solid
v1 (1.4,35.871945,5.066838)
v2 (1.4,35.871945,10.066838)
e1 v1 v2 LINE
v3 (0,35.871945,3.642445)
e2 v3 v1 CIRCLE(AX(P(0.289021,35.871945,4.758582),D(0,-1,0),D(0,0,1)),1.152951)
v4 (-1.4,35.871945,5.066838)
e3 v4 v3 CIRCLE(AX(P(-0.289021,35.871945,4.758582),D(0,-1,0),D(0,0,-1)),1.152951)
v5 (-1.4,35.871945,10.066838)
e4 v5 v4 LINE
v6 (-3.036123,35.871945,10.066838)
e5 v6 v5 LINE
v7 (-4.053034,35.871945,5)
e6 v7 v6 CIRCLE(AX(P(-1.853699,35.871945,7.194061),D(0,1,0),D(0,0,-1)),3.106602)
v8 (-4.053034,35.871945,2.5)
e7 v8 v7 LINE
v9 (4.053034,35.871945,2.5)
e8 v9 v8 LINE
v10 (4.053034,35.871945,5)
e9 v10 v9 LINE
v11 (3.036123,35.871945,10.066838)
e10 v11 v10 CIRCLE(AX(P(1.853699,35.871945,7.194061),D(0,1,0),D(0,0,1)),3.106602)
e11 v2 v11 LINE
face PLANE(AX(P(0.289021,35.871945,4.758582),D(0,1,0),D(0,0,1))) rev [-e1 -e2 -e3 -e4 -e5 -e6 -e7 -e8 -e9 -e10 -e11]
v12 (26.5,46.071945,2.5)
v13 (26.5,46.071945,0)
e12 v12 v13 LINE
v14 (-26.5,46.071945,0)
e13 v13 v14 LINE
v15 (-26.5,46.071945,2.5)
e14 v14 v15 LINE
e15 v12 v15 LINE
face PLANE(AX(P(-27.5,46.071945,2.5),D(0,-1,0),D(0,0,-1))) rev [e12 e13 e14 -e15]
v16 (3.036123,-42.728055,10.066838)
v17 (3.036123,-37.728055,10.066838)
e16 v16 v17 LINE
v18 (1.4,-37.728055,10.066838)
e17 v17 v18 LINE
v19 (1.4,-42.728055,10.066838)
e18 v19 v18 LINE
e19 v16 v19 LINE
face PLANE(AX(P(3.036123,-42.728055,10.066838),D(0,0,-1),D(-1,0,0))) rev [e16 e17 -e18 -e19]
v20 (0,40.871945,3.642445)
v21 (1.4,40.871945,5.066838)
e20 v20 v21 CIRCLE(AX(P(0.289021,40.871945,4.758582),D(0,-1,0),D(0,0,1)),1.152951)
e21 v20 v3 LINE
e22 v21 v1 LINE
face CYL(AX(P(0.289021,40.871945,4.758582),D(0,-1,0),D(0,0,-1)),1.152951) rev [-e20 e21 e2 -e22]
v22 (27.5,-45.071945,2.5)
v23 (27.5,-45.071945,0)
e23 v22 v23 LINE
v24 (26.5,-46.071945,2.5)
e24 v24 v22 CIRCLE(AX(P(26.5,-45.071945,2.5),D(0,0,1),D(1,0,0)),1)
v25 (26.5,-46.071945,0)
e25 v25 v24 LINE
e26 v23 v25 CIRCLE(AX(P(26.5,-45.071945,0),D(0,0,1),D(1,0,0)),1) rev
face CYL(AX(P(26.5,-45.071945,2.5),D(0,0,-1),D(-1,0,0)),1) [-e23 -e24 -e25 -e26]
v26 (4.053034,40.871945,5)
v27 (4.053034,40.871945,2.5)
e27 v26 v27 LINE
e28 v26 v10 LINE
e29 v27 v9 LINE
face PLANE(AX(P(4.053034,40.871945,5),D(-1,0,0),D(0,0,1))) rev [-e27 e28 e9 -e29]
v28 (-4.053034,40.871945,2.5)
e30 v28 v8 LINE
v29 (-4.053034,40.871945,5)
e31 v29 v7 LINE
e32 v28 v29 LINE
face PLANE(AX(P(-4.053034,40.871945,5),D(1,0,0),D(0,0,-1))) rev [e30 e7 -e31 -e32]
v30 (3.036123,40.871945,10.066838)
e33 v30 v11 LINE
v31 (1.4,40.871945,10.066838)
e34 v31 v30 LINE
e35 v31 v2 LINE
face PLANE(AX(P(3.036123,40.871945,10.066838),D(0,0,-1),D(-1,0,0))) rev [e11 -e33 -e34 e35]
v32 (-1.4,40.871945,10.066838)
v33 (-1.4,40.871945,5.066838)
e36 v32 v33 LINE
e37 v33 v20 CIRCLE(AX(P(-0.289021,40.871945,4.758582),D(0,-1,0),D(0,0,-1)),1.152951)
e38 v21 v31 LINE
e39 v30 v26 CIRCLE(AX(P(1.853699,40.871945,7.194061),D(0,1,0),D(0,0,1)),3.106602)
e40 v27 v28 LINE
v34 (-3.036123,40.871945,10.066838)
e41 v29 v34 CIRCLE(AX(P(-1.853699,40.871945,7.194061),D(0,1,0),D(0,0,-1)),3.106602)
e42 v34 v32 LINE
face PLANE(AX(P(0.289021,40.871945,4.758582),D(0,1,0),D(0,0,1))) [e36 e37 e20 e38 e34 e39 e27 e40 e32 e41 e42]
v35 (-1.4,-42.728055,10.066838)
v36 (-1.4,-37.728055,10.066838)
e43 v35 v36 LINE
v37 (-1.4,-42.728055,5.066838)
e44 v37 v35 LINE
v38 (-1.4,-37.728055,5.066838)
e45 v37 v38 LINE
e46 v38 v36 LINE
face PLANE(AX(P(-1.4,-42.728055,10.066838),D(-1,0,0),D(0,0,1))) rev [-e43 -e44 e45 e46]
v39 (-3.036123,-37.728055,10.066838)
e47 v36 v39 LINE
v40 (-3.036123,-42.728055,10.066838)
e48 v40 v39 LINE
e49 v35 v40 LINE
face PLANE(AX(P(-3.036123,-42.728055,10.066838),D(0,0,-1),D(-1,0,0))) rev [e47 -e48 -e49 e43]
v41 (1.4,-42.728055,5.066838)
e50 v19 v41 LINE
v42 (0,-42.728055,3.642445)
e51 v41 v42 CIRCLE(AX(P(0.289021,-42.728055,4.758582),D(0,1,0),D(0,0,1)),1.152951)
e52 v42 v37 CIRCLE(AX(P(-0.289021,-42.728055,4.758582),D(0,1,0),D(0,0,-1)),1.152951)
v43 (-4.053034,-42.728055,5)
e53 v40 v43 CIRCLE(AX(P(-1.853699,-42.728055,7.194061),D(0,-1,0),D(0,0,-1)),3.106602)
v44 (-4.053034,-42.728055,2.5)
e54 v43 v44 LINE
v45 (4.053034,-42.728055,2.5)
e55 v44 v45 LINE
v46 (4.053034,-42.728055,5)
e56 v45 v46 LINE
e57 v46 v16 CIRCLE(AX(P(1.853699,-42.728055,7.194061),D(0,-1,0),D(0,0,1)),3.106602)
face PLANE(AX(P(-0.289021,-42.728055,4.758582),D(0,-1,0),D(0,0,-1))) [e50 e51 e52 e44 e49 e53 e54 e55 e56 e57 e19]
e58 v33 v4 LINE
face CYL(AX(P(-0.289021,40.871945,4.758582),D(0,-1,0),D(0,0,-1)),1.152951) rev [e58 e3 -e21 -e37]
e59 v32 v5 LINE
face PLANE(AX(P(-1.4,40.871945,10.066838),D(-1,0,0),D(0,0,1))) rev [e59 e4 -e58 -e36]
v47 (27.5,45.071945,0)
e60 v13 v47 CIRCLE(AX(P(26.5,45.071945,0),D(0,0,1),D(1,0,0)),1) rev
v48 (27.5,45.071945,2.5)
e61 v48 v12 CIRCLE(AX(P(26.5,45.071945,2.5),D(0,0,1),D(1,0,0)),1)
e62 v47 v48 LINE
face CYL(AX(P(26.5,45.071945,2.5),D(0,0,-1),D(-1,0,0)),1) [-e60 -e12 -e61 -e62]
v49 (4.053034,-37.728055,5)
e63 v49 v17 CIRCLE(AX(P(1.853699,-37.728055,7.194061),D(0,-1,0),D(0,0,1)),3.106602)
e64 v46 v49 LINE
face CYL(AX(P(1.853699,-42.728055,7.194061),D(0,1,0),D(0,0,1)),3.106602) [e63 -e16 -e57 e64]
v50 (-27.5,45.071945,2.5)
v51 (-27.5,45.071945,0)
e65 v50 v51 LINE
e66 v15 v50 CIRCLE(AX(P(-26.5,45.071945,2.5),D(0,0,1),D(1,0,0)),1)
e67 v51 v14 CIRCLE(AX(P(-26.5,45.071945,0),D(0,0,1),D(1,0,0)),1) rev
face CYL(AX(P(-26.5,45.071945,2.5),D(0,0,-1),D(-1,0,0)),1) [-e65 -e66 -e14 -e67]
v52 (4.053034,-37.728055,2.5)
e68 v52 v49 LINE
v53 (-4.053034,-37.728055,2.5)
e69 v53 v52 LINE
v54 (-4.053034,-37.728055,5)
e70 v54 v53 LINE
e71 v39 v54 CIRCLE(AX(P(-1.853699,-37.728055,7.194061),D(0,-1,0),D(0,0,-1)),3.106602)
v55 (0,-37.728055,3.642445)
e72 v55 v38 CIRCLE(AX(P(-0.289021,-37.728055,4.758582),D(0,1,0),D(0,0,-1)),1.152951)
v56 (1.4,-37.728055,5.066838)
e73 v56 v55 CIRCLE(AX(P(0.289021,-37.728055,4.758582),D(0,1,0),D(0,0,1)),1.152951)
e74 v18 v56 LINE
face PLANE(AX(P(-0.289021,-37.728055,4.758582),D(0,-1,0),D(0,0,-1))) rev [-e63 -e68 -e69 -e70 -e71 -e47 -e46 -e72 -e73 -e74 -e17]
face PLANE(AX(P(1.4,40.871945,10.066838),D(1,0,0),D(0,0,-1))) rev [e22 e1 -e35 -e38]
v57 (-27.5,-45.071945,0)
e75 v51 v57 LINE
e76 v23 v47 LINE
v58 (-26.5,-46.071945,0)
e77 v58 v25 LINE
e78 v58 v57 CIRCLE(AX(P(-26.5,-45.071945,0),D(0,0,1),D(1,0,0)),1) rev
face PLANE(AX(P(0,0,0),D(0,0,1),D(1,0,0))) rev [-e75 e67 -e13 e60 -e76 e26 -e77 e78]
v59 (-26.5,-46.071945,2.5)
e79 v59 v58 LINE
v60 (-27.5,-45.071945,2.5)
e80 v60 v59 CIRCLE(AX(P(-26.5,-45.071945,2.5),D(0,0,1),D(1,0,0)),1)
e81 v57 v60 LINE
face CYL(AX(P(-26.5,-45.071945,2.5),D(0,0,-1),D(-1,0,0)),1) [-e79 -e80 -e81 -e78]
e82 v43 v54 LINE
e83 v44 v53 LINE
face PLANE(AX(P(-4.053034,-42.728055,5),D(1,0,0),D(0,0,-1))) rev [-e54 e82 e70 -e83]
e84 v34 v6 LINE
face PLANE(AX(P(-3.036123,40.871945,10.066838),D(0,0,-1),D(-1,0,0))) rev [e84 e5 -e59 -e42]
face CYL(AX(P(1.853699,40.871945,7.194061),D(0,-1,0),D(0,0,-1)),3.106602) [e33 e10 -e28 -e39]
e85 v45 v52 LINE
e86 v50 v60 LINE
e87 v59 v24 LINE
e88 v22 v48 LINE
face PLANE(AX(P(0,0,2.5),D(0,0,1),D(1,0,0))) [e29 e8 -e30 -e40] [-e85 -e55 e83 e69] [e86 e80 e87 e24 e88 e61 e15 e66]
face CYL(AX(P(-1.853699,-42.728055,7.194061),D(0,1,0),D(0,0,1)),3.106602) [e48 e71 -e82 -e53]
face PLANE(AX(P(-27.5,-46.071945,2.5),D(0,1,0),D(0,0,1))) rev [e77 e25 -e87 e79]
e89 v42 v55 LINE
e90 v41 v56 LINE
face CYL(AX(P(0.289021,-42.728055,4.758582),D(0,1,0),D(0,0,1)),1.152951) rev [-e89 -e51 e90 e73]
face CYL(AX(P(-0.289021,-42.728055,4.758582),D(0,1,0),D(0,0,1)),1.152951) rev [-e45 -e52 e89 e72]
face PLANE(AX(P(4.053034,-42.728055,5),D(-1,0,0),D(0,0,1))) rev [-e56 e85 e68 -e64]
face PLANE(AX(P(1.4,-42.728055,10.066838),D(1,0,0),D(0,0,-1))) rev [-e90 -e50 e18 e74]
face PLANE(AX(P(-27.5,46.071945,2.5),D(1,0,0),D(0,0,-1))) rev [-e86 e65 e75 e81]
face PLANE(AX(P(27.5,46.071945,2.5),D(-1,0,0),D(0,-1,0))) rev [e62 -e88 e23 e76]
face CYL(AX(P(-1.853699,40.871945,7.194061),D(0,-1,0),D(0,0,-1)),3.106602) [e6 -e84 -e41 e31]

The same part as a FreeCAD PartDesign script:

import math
import FreeCAD as App
import Part
import Sketcher
from FreeCAD import Vector
Q = App.Units.Quantity


def edges_at(feature, points):
    """Names of the edges that pass closest to the given points."""
    edges = feature.Shape.Edges
    near = lambda p: min(range(len(edges)), key=lambda i: edges[i].distToShape(Part.Vertex(*p))[0])
    return sorted({f"Edge{near(p) + 1}" for p in points})


def add_polygon(sketch, points):
    """Adds a closed chain of lines whose ends are joined by coincident constraints."""
    first, n = sketch.GeometryCount, len(points)
    for a, b in zip(points, points[1:] + points[:1]):
        sketch.addGeometry(Part.LineSegment(App.Vector(*a, 0), App.Vector(*b, 0)), False)
    for i in range(n):
        sketch.addConstraint(Sketcher.Constraint("Coincident", first + i, 2, first + (i + 1) % n, 1))

doc = App.newDocument("Part")
body = doc.addObject("PartDesign::Body", "Body")

sketch1 = doc.addObject("Sketcher::SketchObject", "Sketch")
body.addObject(sketch1)
sketch1.AttachmentSupport = (doc.XY_Plane, [""])
sketch1.MapMode = "FlatFace"
add_polygon(sketch1, [(-28, 46), (-28, -46), (28, -46), (28, 46)])
sketch1.addConstraint(Sketcher.Constraint("Vertical", 0))
sketch1.addConstraint(Sketcher.Constraint("Horizontal", 1))
sketch1.addConstraint(Sketcher.Constraint("Vertical", 2))
sketch1.addConstraint(Sketcher.Constraint("Horizontal", 3))
sketch1.addConstraint(Sketcher.Constraint("Symmetric", 0, 2, 2, 2, -1, 1))
sketch1.addConstraint(Sketcher.Constraint("DistanceX", 1, 1, 1, 2, Q("55 mm")))
sketch1.addConstraint(Sketcher.Constraint("DistanceY", 0, 2, 0, 1, Q("92.143891 mm")))
pad1 = doc.addObject("PartDesign::Pad", "Pad")
body.addObject(pad1)
pad1.Profile = sketch1
pad1.Length = 2.5

sketch2 = doc.addObject("Sketcher::SketchObject", "Sketch001")
body.addObject(sketch2)
sketch2.AttachmentSupport = (doc.XZ_Plane, [""])
sketch2.MapMode = "FlatFace"
sketch2.AttachmentOffset = App.Placement(Vector(0, 0, -38.371945), App.Rotation())
sketch2.addGeometry(Part.LineSegment(Vector(-4.1, 2.5, 0), Vector(-4.1, 5, 0)), False)
sketch2.addGeometry(Part.ArcOfCircle(Part.Circle(Vector(-1.9, 7.2, 0), Vector(0, 0, 1), 3.1), math.radians(112), math.radians(225)), False)
sketch2.addGeometry(Part.LineSegment(Vector(-3, 10.1, 0), Vector(-1.4, 10.1, 0)), False)
sketch2.addGeometry(Part.LineSegment(Vector(-1.4, 10.1, 0), Vector(-1.4, 5.1, 0)), False)
sketch2.addGeometry(Part.ArcOfCircle(Part.Circle(Vector(-0.3, 4.8, 0), Vector(0, 0, 1), 1.2), math.radians(164), math.radians(285)), False)
sketch2.addGeometry(Part.ArcOfCircle(Part.Circle(Vector(0.3, 4.8, 0), Vector(0, 0, 1), 1.2), math.radians(-105), math.radians(16)), False)
sketch2.addGeometry(Part.LineSegment(Vector(1.4, 5.1, 0), Vector(1.4, 10.1, 0)), False)
sketch2.addGeometry(Part.LineSegment(Vector(1.4, 10.1, 0), Vector(3, 10.1, 0)), False)
sketch2.addGeometry(Part.ArcOfCircle(Part.Circle(Vector(1.9, 7.2, 0), Vector(0, 0, 1), 3.1), math.radians(-45), math.radians(68)), False)
sketch2.addGeometry(Part.LineSegment(Vector(4.1, 5, 0), Vector(4.1, 2.5, 0)), False)
sketch2.addGeometry(Part.LineSegment(Vector(4.1, 2.5, 0), Vector(-4.1, 2.5, 0)), False)
sketch2.addConstraint(Sketcher.Constraint("Coincident", 0, 2, 1, 2))
sketch2.addConstraint(Sketcher.Constraint("Coincident", 1, 1, 2, 1))
sketch2.addConstraint(Sketcher.Constraint("Coincident", 2, 2, 3, 1))
sketch2.addConstraint(Sketcher.Constraint("Coincident", 3, 2, 4, 1))
sketch2.addConstraint(Sketcher.Constraint("Coincident", 4, 2, 5, 1))
sketch2.addConstraint(Sketcher.Constraint("Coincident", 5, 2, 6, 1))
sketch2.addConstraint(Sketcher.Constraint("Coincident", 6, 2, 7, 1))
sketch2.addConstraint(Sketcher.Constraint("Coincident", 7, 2, 8, 2))
sketch2.addConstraint(Sketcher.Constraint("Coincident", 8, 1, 9, 1))
sketch2.addConstraint(Sketcher.Constraint("Coincident", 9, 2, 10, 1))
sketch2.addConstraint(Sketcher.Constraint("Coincident", 10, 2, 0, 1))
sketch2.addConstraint(Sketcher.Constraint("Vertical", 0))
sketch2.addConstraint(Sketcher.Constraint("Horizontal", 2))
sketch2.addConstraint(Sketcher.Constraint("Vertical", 3))
sketch2.addConstraint(Sketcher.Constraint("Vertical", 6))
sketch2.addConstraint(Sketcher.Constraint("Horizontal", 7))
sketch2.addConstraint(Sketcher.Constraint("Vertical", 9))
sketch2.addConstraint(Sketcher.Constraint("Horizontal", 10))
sketch2.addConstraint(Sketcher.Constraint("Equal", 4, 5))
sketch2.addConstraint(Sketcher.Constraint("Equal", 1, 8))
sketch2.addConstraint(Sketcher.Constraint("Symmetric", 4, 3, 5, 3, -2))
sketch2.addConstraint(Sketcher.Constraint("Symmetric", 1, 3, 8, 3, -2))
sketch2.addConstraint(Sketcher.Constraint("Symmetric", 2, 2, 6, 2, -2))
sketch2.addConstraint(Sketcher.Constraint("Horizontal", 0, 2, 8, 1))
sketch2.addConstraint(Sketcher.Constraint("DistanceY", 3, 2, 3, 1, Q("5 mm")))
sketch2.addConstraint(Sketcher.Constraint("DistanceY", 0, 1, 0, 2, Q("2.5 mm")))
sketch2.addConstraint(Sketcher.Constraint("DistanceY", -1, 1, 0, 2, Q("5 mm")))
sketch2.addConstraint(Sketcher.Constraint("DistanceX", 2, 2, -1, 1, Q("1.4 mm")))
sketch2.addConstraint(Sketcher.Constraint("Radius", 4, Q("1.152951 mm")))
sketch2.addConstraint(Sketcher.Constraint("Radius", 1, Q("3.106602 mm")))
sketch2.addConstraint(Sketcher.Constraint("DistanceX", 1, 3, -1, 1, Q("1.853699 mm")))
sketch2.addConstraint(Sketcher.Constraint("DistanceX", 2, 1, 2, 2, Q("1.636123 mm")))
sketch2.addConstraint(Sketcher.Constraint("DistanceX", 10, 2, 10, 1, Q("8.106068 mm")))
sketch2.addConstraint(Sketcher.Constraint("DistanceX", 4, 3, -1, 1, Q("0.289021 mm")))
pad2 = doc.addObject("PartDesign::Pad", "Pad001")
body.addObject(pad2)
pad2.Profile = sketch2
pad2.Length = 5
pad2.Midplane = True

sketch3 = doc.addObject("Sketcher::SketchObject", "Sketch002")
body.addObject(sketch3)
sketch3.AttachmentSupport = (doc.XZ_Plane, [""])
sketch3.MapMode = "FlatFace"
sketch3.AttachmentOffset = App.Placement(Vector(0, 0, 40.228055), App.Rotation())
sketch3.addGeometry(Part.LineSegment(Vector(4.1, 2.5, 0), Vector(4.1, 5, 0)), False)
sketch3.addGeometry(Part.ArcOfCircle(Part.Circle(Vector(1.9, 7.2, 0), Vector(0, 0, 1), 3.1), math.radians(-45), math.radians(68)), False)
sketch3.addGeometry(Part.LineSegment(Vector(3, 10.1, 0), Vector(1.4, 10.1, 0)), False)
sketch3.addGeometry(Part.LineSegment(Vector(1.4, 10.1, 0), Vector(1.4, 5.1, 0)), False)
sketch3.addGeometry(Part.ArcOfCircle(Part.Circle(Vector(0.3, 4.8, 0), Vector(0, 0, 1), 1.2), math.radians(-105), math.radians(16)), False)
sketch3.addGeometry(Part.ArcOfCircle(Part.Circle(Vector(-0.3, 4.8, 0), Vector(0, 0, 1), 1.2), math.radians(164), math.radians(285)), False)
sketch3.addGeometry(Part.LineSegment(Vector(-1.4, 5.1, 0), Vector(-1.4, 10.1, 0)), False)
sketch3.addGeometry(Part.LineSegment(Vector(-1.4, 10.1, 0), Vector(-3, 10.1, 0)), False)
sketch3.addGeometry(Part.ArcOfCircle(Part.Circle(Vector(-1.9, 7.2, 0), Vector(0, 0, 1), 3.1), math.radians(112), math.radians(225)), False)
sketch3.addGeometry(Part.LineSegment(Vector(-4.1, 5, 0), Vector(-4.1, 2.5, 0)), False)
sketch3.addGeometry(Part.LineSegment(Vector(-4.1, 2.5, 0), Vector(4.1, 2.5, 0)), False)
sketch3.addConstraint(Sketcher.Constraint("Coincident", 0, 2, 1, 1))
sketch3.addConstraint(Sketcher.Constraint("Coincident", 1, 2, 2, 1))
sketch3.addConstraint(Sketcher.Constraint("Coincident", 2, 2, 3, 1))
sketch3.addConstraint(Sketcher.Constraint("Coincident", 3, 2, 4, 2))
sketch3.addConstraint(Sketcher.Constraint("Coincident", 4, 1, 5, 2))
sketch3.addConstraint(Sketcher.Constraint("Coincident", 5, 1, 6, 1))
sketch3.addConstraint(Sketcher.Constraint("Coincident", 6, 2, 7, 1))
sketch3.addConstraint(Sketcher.Constraint("Coincident", 7, 2, 8, 1))
sketch3.addConstraint(Sketcher.Constraint("Coincident", 8, 2, 9, 1))
sketch3.addConstraint(Sketcher.Constraint("Coincident", 9, 2, 10, 1))
sketch3.addConstraint(Sketcher.Constraint("Coincident", 10, 2, 0, 1))
sketch3.addConstraint(Sketcher.Constraint("Vertical", 0))
sketch3.addConstraint(Sketcher.Constraint("Horizontal", 2))
sketch3.addConstraint(Sketcher.Constraint("Vertical", 3))
sketch3.addConstraint(Sketcher.Constraint("Vertical", 6))
sketch3.addConstraint(Sketcher.Constraint("Horizontal", 7))
sketch3.addConstraint(Sketcher.Constraint("Vertical", 9))
sketch3.addConstraint(Sketcher.Constraint("Horizontal", 10))
sketch3.addConstraint(Sketcher.Constraint("Equal", 4, 5))
sketch3.addConstraint(Sketcher.Constraint("Equal", 1, 8))
sketch3.addConstraint(Sketcher.Constraint("Symmetric", 4, 3, 5, 3, -2))
sketch3.addConstraint(Sketcher.Constraint("Symmetric", 1, 3, 8, 3, -2))
sketch3.addConstraint(Sketcher.Constraint("Symmetric", 2, 2, 6, 2, -2))
sketch3.addConstraint(Sketcher.Constraint("Horizontal", 0, 2, 8, 2))
sketch3.addConstraint(Sketcher.Constraint("DistanceY", 3, 2, 3, 1, Q("5 mm")))
sketch3.addConstraint(Sketcher.Constraint("DistanceY", 0, 1, 0, 2, Q("2.5 mm")))
sketch3.addConstraint(Sketcher.Constraint("DistanceY", -1, 1, 0, 2, Q("5 mm")))
sketch3.addConstraint(Sketcher.Constraint("DistanceX", -1, 1, 2, 2, Q("1.4 mm")))
sketch3.addConstraint(Sketcher.Constraint("Radius", 4, Q("1.152951 mm")))
sketch3.addConstraint(Sketcher.Constraint("Radius", 1, Q("3.106602 mm")))
sketch3.addConstraint(Sketcher.Constraint("DistanceX", -1, 1, 1, 3, Q("1.853699 mm")))
sketch3.addConstraint(Sketcher.Constraint("DistanceX", 2, 2, 2, 1, Q("1.636123 mm")))
sketch3.addConstraint(Sketcher.Constraint("DistanceX", 10, 1, 10, 2, Q("8.106068 mm")))
sketch3.addConstraint(Sketcher.Constraint("DistanceX", -1, 1, 4, 3, Q("0.289021 mm")))
pad3 = doc.addObject("PartDesign::Pad", "Pad002")
body.addObject(pad3)
pad3.Profile = sketch3
pad3.Length = 5
pad3.Midplane = True
doc.recompute()

fillet = doc.addObject("PartDesign::Fillet", "Fillet")
body.addObject(fillet)
fillet.Base = (pad3, edges_at(pad3, [
    (-27.5, 46.072, 1.25),
    (27.5, 46.072, 1.25),
    (27.5, -46.072, 1.25),
    (-27.5, -46.072, 1.25),
]))
fillet.Radius = 1

doc.recompute()
